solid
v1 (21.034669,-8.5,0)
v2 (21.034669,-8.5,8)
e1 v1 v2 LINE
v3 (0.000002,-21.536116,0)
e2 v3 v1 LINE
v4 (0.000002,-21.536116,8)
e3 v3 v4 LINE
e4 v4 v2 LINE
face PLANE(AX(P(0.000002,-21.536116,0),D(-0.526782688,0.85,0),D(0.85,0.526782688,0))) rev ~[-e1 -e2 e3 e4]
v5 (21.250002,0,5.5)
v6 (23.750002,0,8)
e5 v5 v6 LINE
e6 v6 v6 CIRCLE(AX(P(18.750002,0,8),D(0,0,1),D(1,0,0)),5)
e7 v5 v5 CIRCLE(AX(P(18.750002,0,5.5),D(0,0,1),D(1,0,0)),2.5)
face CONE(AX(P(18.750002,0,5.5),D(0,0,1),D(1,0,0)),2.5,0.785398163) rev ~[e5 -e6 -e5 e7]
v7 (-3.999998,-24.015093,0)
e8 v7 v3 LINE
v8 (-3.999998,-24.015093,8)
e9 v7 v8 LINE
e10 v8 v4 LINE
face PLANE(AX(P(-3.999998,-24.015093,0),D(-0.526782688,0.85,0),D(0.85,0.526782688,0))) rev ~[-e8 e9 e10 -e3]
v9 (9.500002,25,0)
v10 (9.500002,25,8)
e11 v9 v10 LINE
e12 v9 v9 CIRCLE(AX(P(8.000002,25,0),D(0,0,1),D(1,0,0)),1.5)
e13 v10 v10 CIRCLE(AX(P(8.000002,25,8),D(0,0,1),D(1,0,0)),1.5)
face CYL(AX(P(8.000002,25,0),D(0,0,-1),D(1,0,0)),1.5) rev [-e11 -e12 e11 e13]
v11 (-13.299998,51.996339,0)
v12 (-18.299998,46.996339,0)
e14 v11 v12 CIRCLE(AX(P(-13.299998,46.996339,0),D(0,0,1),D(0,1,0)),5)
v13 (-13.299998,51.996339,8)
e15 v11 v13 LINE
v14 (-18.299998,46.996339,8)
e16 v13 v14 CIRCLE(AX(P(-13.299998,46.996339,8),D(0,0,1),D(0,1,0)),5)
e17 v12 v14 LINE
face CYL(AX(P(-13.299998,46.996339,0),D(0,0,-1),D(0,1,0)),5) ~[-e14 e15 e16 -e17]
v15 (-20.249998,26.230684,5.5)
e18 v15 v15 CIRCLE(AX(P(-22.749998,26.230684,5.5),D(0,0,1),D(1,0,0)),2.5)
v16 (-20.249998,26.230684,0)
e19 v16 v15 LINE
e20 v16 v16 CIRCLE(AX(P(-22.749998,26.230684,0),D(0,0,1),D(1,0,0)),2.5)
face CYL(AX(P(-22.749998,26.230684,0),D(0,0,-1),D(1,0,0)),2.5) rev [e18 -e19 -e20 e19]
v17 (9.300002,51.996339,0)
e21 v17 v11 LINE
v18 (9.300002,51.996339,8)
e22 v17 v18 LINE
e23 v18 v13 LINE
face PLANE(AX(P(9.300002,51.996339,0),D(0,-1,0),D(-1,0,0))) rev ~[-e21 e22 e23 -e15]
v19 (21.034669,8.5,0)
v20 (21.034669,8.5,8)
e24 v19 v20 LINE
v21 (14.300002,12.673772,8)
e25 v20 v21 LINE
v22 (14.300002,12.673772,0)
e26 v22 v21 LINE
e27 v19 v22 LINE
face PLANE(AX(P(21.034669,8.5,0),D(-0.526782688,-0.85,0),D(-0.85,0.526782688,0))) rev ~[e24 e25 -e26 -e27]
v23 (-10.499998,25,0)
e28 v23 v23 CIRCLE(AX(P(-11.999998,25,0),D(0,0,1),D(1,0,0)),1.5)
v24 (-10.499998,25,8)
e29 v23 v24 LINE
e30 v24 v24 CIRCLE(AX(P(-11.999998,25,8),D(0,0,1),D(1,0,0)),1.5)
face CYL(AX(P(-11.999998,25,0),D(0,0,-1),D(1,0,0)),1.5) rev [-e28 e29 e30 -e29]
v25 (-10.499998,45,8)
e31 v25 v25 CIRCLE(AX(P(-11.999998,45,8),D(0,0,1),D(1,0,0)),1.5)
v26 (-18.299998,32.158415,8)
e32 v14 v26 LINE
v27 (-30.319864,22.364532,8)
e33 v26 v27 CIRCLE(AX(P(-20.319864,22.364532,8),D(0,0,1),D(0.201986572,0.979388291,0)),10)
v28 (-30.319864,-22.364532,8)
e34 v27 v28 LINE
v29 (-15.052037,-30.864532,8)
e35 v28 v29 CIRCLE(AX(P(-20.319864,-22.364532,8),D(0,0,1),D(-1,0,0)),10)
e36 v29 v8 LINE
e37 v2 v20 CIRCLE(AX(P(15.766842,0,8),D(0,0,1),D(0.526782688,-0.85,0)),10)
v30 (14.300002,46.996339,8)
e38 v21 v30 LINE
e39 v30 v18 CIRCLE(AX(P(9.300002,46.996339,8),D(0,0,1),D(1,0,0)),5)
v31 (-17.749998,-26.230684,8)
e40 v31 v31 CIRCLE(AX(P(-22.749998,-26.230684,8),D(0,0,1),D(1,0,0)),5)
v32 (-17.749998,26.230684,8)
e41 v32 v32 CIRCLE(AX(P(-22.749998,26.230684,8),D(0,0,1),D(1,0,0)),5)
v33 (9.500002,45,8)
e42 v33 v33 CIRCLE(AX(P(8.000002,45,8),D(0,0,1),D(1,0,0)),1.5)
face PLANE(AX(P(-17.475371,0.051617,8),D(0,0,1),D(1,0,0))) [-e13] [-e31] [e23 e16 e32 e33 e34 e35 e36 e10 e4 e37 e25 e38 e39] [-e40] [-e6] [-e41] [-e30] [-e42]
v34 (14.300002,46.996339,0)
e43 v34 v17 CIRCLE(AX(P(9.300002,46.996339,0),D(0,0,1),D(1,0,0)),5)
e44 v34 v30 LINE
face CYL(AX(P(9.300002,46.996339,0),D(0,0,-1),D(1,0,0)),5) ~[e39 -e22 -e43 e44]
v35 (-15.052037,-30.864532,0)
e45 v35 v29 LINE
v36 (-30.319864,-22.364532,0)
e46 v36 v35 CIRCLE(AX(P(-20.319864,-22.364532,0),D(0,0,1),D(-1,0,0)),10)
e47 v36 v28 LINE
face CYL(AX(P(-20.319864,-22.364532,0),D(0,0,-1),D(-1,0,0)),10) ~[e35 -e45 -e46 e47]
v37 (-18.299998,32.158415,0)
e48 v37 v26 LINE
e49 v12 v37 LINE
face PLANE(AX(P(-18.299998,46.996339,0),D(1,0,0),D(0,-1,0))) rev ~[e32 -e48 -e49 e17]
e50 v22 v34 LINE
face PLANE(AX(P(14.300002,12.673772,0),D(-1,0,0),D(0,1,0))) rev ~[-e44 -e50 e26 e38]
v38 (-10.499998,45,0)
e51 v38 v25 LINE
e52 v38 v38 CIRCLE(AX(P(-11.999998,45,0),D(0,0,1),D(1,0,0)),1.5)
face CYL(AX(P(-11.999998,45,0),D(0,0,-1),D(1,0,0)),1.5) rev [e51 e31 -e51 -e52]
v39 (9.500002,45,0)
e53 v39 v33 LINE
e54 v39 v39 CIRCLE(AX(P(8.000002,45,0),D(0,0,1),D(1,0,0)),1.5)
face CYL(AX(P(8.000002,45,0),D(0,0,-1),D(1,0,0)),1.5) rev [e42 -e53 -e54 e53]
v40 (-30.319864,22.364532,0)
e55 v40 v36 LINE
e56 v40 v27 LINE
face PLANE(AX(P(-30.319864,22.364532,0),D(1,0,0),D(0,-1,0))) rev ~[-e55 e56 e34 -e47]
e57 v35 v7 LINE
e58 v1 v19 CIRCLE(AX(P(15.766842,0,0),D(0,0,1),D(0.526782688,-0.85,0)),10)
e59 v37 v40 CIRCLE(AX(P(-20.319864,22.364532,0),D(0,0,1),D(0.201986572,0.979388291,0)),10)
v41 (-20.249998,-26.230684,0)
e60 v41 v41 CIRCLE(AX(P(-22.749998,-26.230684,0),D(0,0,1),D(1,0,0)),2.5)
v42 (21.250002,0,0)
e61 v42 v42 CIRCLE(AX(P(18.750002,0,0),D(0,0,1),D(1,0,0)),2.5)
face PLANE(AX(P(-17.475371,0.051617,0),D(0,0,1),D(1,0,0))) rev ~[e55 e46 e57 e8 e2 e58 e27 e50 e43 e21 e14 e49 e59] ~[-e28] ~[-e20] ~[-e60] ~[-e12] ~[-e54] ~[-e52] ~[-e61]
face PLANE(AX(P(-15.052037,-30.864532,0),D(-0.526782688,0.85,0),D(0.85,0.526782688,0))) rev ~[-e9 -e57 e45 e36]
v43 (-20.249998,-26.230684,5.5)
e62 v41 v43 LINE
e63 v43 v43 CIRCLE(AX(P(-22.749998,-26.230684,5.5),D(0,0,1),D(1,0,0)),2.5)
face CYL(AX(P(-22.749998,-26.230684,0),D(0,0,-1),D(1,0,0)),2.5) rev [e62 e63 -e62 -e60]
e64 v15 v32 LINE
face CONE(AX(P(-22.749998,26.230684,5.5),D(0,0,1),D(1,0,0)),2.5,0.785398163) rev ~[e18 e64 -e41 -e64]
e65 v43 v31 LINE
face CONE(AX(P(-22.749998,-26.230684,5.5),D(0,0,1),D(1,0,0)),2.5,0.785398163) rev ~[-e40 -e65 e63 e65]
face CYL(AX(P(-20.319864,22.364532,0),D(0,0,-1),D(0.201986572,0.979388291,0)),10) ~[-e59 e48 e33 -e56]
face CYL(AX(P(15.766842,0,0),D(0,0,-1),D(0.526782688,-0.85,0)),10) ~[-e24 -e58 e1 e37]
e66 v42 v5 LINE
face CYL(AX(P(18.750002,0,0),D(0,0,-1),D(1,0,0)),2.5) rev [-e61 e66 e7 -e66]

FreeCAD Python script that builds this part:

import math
import FreeCAD as App
import Part
import Sketcher


def edges_at(feature, points):
    """Names of the edges that pass closest to the given points."""
    edges = feature.Shape.Edges
    near = lambda p: min(range(len(edges)), key=lambda i: edges[i].distToShape(Part.Vertex(*p))[0])
    return sorted({f"Edge{near(p) + 1}" for p in points})

doc = App.newDocument("Part")
params = doc.addObject("Spreadsheet::Sheet", "Params")
for row, (alias, value) in enumerate([
    ("sketch1_diameter", "5 mm"),
    ("sketch1_diameter2", "3 mm"),
    ("sketch1_radius", "10 mm"),
    ("sketch1_radius2", "5 mm"),
    ("sketch1_width", "22.6 mm"),
    ("pad1_length", "8 mm"),
    ("chamfer_size", "2.5 mm"),
], start=1):
    params.set(f"A{row}", alias)
    params.set(f"B{row}", "=" + value)
    params.setAlias(f"B{row}", alias)

body = doc.addObject("PartDesign::Body", "Body")

sketch1 = body.newObject("Sketcher::SketchObject", "Sketch")
sketch1.AttachmentSupport = (doc.getObject("XY_Plane"), [""])
sketch1.MapMode = "FlatFace"
sketch1.addGeometry([
    Part.LineSegment(App.Vector(-15.1, -30.9, 0), App.Vector(-4, -24, 0)),
    Part.LineSegment(App.Vector(-4, -24, 0), App.Vector(0, -21.5, 0)),
    Part.LineSegment(App.Vector(0, -21.5, 0), App.Vector(21, -8.5, 0)),
    Part.ArcOfCircle(Part.Circle(App.Vector(15.8, 0, 0), App.Vector(0, 0, 1), 10), math.radians(-58), math.radians(58)),
    Part.LineSegment(App.Vector(21, 8.5, 0), App.Vector(14.3, 12.7, 0)),
    Part.LineSegment(App.Vector(14.3, 12.7, 0), App.Vector(14.3, 47, 0)),
    Part.ArcOfCircle(Part.Circle(App.Vector(9.3, 47, 0), App.Vector(0, 0, 1), 5), math.radians(0), math.radians(90)),
    Part.LineSegment(App.Vector(9.3, 52, 0), App.Vector(-13.3, 52, 0)),
    Part.ArcOfCircle(Part.Circle(App.Vector(-13.3, 47, 0), App.Vector(0, 0, 1), 5), math.radians(90), math.radians(180)),
    Part.LineSegment(App.Vector(-18.3, 47, 0), App.Vector(-18.3, 32.2, 0)),
    Part.ArcOfCircle(Part.Circle(App.Vector(-20.3, 22.4, 0), App.Vector(0, 0, 1), 10), math.radians(78), math.radians(180)),
    Part.LineSegment(App.Vector(-30.3, 22.4, 0), App.Vector(-30.3, -22.4, 0)),
    Part.ArcOfCircle(Part.Circle(App.Vector(-20.3, -22.4, 0), App.Vector(0, 0, 1), 10), math.radians(180), math.radians(302)),
    Part.Circle(App.Vector(-22.7, -26.2, 0), App.Vector(0, 0, 1), 2.5),
    Part.Circle(App.Vector(18.8, 0, 0), App.Vector(0, 0, 1), 2.5),
    Part.Circle(App.Vector(-22.7, 26.2, 0), App.Vector(0, 0, 1), 2.5),
    Part.Circle(App.Vector(-12, 25, 0), App.Vector(0, 0, 1), 1.5),
    Part.Circle(App.Vector(-12, 45, 0), App.Vector(0, 0, 1), 1.5),
    Part.Circle(App.Vector(8, 25, 0), App.Vector(0, 0, 1), 1.5),
    Part.Circle(App.Vector(8, 45, 0), App.Vector(0, 0, 1), 1.5),
], False)
sketch1.addConstraint([
    Sketcher.Constraint("Coincident", 0, 2, 1, 1),
    Sketcher.Constraint("Coincident", 1, 2, 2, 1),
    Sketcher.Constraint("Tangent", 2, 2, 3, 1),
    Sketcher.Constraint("Tangent", 3, 2, 4, 1),
    Sketcher.Constraint("Coincident", 4, 2, 5, 1),
    Sketcher.Constraint("Tangent", 5, 2, 6, 1),
    Sketcher.Constraint("Tangent", 6, 2, 7, 1),
    Sketcher.Constraint("Tangent", 7, 2, 8, 1),
    Sketcher.Constraint("Tangent", 8, 2, 9, 1),
    Sketcher.Constraint("Coincident", 9, 2, 10, 1),
    Sketcher.Constraint("Tangent", 10, 2, 11, 1),
    Sketcher.Constraint("Tangent", 11, 2, 12, 1),
    Sketcher.Constraint("Tangent", 12, 2, 0, 1),
    Sketcher.Constraint("Vertical", 5),
    Sketcher.Constraint("Horizontal", 7),
    Sketcher.Constraint("Vertical", 9),
    Sketcher.Constraint("Vertical", 11),
    Sketcher.Constraint("Equal", 6, 8),
    Sketcher.Constraint("Equal", 3, 10),
    Sketcher.Constraint("Equal", 10, 12),
    Sketcher.Constraint("Equal", 13, 14),
    Sketcher.Constraint("Equal", 14, 15),
    Sketcher.Constraint("Equal", 16, 17),
    Sketcher.Constraint("Equal", 17, 18),
    Sketcher.Constraint("Equal", 18, 19),
    Sketcher.Constraint("Symmetric", 13, 3, 15, 3, -1),
    Sketcher.Constraint("Symmetric", 2, 2, 3, 2, -1),
    Sketcher.Constraint("PointOnObject", 14, 3, -1),
    Sketcher.Constraint("Parallel", 0, 1),
    Sketcher.Constraint("Parallel", 1, 2),
    Sketcher.Constraint("Horizontal", 16, 3, 18, 3),
    Sketcher.Constraint("Horizontal", 17, 3, 19, 3),
    Sketcher.Constraint("Vertical", 16, 3, 17, 3),
    Sketcher.Constraint("Vertical", 18, 3, 19, 3),
    Sketcher.Constraint("Diameter", 13, 5.0),
    Sketcher.Constraint("Diameter", 16, 3.0),
    Sketcher.Constraint("Radius", 3, 10.0),
    Sketcher.Constraint("Radius", 6, 5.0),
    Sketcher.Constraint("DistanceX", 7, 2, 7, 1, 22.6),
    Sketcher.Constraint("DistanceY", -1, 1, 16, 3, 25.0),
    Sketcher.Constraint("DistanceY", -1, 1, 17, 3, 45.0),
    Sketcher.Constraint("DistanceX", 16, 3, 18, 3, 20.0),
    Sketcher.Constraint("DistanceX", 0, 2, 1, 2, 4.0),
    Sketcher.Constraint("DistanceY", 2, 2, 3, 2, 17.0),
    Sketcher.Constraint("DistanceX", 13, 3, 14, 3, 41.5),
    Sketcher.Constraint("DistanceX", 8, 3, 16, 3, 1.3),
    Sketcher.Constraint("DistanceX", 13, 3, 8, 3, 9.45),
    Sketcher.Constraint("DistanceX", 13, 3, 0, 2, 18.75),
    Sketcher.Constraint("Distance", 0, 13.002399),
    Sketcher.Constraint("DistanceY", 5, 1, 5, 2, 34.322567),
    Sketcher.Constraint("DistanceY", 9, 2, 9, 1, 14.837924),
    Sketcher.Constraint("DistanceY", 11, 2, 11, 1, 44.729063),
    Sketcher.Constraint("DistanceX", -1, 1, 2, 2, 21.034669),
    Sketcher.Constraint("DistanceY", 13, 3, 0, 2, 2.215591),
])
sketch1.setExpression("Constraints[34]", "Params.sketch1_diameter")
sketch1.setExpression("Constraints[35]", "Params.sketch1_diameter2")
sketch1.setExpression("Constraints[36]", "Params.sketch1_radius")
sketch1.setExpression("Constraints[37]", "Params.sketch1_radius2")
sketch1.setExpression("Constraints[38]", "Params.sketch1_width")
pad1 = body.newObject("PartDesign::Pad", "Pad")
pad1.Profile = sketch1
pad1.setExpression("Length", "Params.pad1_length")
doc.recompute()

chamfer = body.newObject("PartDesign::Chamfer", "Chamfer")
chamfer.Base = (pad1, edges_at(pad1, [(-25.25, -26.231, 8), (-25.25, 26.231, 8), (16.25, 0, 8)]))
chamfer.setExpression("Size", "Params.chamfer_size")

doc.recompute()
